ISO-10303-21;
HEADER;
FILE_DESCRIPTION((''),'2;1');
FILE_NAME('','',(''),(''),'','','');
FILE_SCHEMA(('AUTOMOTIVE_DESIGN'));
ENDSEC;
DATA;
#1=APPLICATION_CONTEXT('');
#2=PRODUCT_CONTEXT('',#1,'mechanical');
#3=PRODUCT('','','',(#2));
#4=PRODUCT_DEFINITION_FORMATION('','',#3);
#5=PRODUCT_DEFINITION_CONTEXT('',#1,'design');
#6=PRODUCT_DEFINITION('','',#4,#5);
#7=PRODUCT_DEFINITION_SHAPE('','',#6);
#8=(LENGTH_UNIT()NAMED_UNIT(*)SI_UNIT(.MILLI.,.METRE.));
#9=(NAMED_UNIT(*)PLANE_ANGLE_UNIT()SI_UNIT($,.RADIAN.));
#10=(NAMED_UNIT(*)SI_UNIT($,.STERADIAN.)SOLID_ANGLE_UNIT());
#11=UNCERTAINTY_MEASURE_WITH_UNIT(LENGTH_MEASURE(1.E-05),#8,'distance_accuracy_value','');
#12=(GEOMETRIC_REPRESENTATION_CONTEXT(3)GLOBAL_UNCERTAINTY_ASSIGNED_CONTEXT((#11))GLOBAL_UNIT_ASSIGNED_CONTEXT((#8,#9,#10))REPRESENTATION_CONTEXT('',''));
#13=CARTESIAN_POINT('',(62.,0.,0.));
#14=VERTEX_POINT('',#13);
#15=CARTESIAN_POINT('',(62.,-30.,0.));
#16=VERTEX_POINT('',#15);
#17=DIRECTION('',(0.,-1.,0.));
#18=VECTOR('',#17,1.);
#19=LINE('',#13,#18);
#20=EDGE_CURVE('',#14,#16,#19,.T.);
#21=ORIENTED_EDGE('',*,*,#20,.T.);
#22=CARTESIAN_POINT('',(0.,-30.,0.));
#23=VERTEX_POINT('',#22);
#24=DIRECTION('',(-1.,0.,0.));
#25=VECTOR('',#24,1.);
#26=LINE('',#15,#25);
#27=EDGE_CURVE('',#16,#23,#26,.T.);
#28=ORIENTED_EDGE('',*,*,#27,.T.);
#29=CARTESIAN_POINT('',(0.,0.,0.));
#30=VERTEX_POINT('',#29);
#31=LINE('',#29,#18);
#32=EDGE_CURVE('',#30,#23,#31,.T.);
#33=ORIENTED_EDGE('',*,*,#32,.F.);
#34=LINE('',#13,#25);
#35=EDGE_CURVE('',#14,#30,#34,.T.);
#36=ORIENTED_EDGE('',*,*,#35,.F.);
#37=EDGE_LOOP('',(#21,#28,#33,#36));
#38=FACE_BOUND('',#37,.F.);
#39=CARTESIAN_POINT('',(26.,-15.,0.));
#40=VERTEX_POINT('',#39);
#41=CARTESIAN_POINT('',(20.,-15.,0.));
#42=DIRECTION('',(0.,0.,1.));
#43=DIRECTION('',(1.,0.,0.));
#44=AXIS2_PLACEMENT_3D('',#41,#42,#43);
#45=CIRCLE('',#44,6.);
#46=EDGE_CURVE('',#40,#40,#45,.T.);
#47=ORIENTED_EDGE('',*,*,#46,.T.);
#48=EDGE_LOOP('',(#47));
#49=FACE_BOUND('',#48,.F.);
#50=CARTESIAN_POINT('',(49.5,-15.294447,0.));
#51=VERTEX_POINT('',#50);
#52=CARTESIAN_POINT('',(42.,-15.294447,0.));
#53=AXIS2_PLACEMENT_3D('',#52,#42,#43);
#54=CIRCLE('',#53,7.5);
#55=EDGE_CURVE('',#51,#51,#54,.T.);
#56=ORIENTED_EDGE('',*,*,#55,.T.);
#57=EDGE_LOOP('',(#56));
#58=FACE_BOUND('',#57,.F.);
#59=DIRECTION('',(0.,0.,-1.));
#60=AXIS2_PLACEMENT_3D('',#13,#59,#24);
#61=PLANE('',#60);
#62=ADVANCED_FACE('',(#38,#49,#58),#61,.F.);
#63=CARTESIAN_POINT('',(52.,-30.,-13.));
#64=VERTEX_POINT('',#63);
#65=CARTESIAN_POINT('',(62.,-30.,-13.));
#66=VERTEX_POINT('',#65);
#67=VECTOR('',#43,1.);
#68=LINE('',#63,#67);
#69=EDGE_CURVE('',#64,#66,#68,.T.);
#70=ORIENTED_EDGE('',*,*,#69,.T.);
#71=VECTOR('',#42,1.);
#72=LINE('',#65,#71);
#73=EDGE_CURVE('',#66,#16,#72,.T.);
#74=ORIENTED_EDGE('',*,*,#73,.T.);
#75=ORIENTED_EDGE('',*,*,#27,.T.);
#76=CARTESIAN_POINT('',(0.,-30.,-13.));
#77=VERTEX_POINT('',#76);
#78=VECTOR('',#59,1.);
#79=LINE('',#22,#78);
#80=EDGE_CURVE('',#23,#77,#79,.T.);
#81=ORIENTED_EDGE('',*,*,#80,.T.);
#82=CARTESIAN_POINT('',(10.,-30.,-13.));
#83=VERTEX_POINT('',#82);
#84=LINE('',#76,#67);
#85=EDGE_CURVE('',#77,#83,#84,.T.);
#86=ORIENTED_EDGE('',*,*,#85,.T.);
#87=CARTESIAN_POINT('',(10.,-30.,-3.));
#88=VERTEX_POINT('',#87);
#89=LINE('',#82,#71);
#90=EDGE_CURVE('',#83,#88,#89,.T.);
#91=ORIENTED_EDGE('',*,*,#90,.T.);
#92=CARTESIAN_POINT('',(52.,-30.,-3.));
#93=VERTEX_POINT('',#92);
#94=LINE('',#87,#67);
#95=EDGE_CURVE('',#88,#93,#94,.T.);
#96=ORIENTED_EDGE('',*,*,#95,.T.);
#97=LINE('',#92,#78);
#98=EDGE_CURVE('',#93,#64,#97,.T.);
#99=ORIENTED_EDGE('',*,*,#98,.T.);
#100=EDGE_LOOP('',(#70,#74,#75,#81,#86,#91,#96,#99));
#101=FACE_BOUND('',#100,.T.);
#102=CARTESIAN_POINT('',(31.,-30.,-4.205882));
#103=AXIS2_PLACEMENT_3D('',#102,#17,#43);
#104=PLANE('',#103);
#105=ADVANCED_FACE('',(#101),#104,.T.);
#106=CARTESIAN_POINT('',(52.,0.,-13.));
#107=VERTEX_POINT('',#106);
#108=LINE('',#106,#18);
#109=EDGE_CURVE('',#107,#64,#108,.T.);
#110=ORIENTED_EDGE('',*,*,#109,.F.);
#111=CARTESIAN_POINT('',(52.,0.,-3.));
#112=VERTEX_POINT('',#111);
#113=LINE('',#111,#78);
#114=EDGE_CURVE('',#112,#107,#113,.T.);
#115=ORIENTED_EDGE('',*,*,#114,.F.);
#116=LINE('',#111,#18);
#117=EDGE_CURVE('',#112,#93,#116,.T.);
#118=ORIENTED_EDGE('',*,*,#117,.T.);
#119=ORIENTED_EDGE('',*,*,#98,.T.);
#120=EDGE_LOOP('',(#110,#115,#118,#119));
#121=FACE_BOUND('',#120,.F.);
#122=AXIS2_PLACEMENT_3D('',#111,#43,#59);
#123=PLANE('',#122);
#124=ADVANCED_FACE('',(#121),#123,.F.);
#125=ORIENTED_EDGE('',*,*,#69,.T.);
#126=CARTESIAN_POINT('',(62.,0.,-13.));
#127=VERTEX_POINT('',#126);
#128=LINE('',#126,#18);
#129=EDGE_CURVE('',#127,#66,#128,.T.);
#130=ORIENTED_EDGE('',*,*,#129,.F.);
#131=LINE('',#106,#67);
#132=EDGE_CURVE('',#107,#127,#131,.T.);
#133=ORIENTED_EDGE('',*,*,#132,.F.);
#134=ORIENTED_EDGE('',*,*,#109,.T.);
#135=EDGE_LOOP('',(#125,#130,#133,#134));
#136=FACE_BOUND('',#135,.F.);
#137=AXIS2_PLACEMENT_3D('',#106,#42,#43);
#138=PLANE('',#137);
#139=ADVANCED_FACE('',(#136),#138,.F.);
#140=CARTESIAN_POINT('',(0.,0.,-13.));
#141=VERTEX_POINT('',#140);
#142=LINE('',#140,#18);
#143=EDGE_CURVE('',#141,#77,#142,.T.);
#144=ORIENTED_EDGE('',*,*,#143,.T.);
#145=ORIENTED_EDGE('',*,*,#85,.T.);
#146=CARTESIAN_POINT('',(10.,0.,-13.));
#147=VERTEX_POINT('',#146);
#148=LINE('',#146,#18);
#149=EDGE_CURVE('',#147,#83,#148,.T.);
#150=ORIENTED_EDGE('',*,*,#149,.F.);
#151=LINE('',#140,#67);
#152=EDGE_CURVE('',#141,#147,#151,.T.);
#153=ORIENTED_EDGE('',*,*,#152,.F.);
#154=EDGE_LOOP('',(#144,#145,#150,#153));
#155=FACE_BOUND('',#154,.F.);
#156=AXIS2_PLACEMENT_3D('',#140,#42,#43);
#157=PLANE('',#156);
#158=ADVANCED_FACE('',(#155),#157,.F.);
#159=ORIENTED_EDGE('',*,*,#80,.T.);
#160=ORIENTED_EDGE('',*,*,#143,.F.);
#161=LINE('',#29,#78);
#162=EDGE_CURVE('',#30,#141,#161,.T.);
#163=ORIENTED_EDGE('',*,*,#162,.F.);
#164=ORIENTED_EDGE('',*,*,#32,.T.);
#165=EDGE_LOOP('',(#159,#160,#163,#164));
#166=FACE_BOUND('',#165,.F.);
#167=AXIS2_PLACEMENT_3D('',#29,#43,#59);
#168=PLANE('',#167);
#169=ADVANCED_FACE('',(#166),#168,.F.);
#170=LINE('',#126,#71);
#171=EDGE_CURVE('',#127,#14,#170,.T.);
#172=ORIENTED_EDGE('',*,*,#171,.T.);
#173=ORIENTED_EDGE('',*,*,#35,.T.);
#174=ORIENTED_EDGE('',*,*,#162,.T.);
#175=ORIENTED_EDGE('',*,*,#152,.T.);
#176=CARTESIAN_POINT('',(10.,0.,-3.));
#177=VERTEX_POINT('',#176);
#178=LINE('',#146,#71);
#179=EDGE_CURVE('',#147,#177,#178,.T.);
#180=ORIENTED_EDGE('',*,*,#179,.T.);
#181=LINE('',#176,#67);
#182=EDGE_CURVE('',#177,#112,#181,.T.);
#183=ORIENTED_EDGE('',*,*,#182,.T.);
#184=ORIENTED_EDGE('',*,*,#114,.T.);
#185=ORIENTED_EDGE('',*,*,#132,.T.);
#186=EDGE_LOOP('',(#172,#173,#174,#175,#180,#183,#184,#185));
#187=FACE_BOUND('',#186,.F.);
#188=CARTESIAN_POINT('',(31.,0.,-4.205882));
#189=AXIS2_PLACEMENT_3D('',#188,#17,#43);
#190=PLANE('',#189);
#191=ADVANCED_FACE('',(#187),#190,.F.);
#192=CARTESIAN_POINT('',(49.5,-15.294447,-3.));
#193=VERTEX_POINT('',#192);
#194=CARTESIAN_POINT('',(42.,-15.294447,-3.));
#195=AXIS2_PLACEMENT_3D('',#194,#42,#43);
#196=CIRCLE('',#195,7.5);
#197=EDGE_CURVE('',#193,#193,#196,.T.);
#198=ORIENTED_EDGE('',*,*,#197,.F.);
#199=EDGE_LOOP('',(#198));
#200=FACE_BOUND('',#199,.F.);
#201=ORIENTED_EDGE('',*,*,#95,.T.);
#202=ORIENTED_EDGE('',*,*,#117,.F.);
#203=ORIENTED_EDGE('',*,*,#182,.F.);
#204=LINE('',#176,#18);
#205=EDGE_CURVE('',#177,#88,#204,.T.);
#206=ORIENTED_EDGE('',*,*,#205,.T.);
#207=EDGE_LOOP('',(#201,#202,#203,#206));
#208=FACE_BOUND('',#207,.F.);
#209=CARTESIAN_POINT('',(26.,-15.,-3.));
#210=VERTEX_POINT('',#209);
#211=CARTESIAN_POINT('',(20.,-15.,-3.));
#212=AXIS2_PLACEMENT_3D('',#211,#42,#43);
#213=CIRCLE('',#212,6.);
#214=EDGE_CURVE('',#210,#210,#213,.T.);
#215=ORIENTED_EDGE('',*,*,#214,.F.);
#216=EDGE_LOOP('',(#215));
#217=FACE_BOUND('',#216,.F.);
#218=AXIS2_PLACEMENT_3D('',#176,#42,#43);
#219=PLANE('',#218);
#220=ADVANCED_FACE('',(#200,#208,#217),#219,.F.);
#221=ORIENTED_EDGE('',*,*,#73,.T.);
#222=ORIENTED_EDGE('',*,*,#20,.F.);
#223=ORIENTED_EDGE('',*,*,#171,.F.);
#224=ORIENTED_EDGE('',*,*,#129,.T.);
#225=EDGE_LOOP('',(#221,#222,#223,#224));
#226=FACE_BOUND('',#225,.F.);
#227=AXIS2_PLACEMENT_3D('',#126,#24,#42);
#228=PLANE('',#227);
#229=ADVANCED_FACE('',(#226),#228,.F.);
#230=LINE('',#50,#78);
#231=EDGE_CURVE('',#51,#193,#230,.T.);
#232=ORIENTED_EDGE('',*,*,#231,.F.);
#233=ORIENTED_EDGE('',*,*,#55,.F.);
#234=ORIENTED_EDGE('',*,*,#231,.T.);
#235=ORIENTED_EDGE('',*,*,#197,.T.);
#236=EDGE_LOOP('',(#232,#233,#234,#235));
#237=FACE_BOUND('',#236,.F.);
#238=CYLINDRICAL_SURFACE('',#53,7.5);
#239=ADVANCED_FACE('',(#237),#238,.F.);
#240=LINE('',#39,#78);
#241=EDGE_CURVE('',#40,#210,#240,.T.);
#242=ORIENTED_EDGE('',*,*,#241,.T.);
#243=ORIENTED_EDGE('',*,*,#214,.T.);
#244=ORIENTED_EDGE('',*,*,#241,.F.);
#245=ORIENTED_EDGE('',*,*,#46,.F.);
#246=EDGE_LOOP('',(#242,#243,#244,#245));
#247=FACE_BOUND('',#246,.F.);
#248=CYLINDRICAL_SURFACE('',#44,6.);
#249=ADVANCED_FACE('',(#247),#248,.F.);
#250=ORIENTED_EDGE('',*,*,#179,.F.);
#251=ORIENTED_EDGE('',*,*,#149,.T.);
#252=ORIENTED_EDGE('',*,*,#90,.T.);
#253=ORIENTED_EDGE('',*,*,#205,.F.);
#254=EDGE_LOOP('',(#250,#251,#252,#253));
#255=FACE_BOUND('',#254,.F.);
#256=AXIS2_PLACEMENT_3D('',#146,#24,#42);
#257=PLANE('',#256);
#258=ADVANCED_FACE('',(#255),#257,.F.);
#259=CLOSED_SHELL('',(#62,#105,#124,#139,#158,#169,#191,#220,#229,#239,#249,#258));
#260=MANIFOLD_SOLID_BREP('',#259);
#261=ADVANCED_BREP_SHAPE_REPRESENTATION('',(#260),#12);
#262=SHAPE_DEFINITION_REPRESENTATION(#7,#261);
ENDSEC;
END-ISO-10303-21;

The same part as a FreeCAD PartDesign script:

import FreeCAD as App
import Part
import Sketcher

V = App.Vector

doc = App.newDocument("Part")
body = doc.addObject("PartDesign::Body", "Body")

sketch1 = body.newObject("Sketcher::SketchObject", "Sketch")
sketch1.AttachmentSupport = (doc.getObject("XZ_Plane"), [""])
sketch1.MapMode = "FlatFace"
sketch1.addGeometry([
    Part.LineSegment(V(62, 0, 0), V(0, 0, 0)),
    Part.LineSegment(V(0, 0, 0), V(0, -13, 0)),
    Part.LineSegment(V(0, -13, 0), V(10, -13, 0)),
    Part.LineSegment(V(10, -13, 0), V(10, -3, 0)),
    Part.LineSegment(V(10, -3, 0), V(52, -3, 0)),
    Part.LineSegment(V(52, -3, 0), V(52, -13, 0)),
    Part.LineSegment(V(52, -13, 0), V(62, -13, 0)),
    Part.LineSegment(V(62, -13, 0), V(62, 0, 0)),
], False)
sketch1.addConstraint([
    Sketcher.Constraint("Coincident", 0, 2, 1, 1),
    Sketcher.Constraint("Coincident", 1, 2, 2, 1),
    Sketcher.Constraint("Coincident", 2, 2, 3, 1),
    Sketcher.Constraint("Coincident", 3, 2, 4, 1),
    Sketcher.Constraint("Coincident", 4, 2, 5, 1),
    Sketcher.Constraint("Coincident", 5, 2, 6, 1),
    Sketcher.Constraint("Coincident", 6, 2, 7, 1),
    Sketcher.Constraint("Coincident", 7, 2, 0, 1),
    Sketcher.Constraint("Horizontal", 0),
    Sketcher.Constraint("Vertical", 1),
    Sketcher.Constraint("Horizontal", 2),
    Sketcher.Constraint("Vertical", 3),
    Sketcher.Constraint("Horizontal", 4),
    Sketcher.Constraint("Vertical", 5),
    Sketcher.Constraint("Horizontal", 6),
    Sketcher.Constraint("Vertical", 7),
    Sketcher.Constraint("Coincident", 0, 2, -1, 1),
    Sketcher.Constraint("Horizontal", 2, 2, 5, 2),
    Sketcher.Constraint("Equal", 2, 6),
    Sketcher.Constraint("Equal", 6, 3),
    Sketcher.Constraint("DistanceX", 0, 2, 0, 1, 62.0),
    Sketcher.Constraint("DistanceX", 2, 1, 2, 2, 10.0),
    Sketcher.Constraint("DistanceY", 1, 2, 1, 1, 13.0),
])
pad1 = body.newObject("PartDesign::Pad", "Pad")
pad1.Profile = sketch1
pad1.Length = 30

sketch2 = body.newObject("Sketcher::SketchObject", "Sketch001")
sketch2.AttachmentSupport = (doc.getObject("XY_Plane"), [""])
sketch2.MapMode = "FlatFace"
sketch2.addGeometry([
    Part.Circle(V(20, -15, 0), V(0, 0, 1), 6),
    Part.Circle(V(42, -15, 0), V(0, 0, 1), 8),
], False)
sketch2.addConstraint([
    Sketcher.Constraint("Diameter", 0, 12.0),
    Sketcher.Constraint("Diameter", 1, 15.0),
    Sketcher.Constraint("DistanceX", -1, 1, 0, 3, 20.0),
    Sketcher.Constraint("DistanceY", 0, 3, -1, 1, 15.0),
    Sketcher.Constraint("DistanceX", -1, 1, 1, 3, 42.0),
    Sketcher.Constraint("DistanceY", 1, 3, -1, 1, 15.294447),
])
pocket1 = body.newObject("PartDesign::Pocket", "Pocket")
pocket1.Profile = sketch2
pocket1.Type = "ThroughAll"

doc.recompute()
